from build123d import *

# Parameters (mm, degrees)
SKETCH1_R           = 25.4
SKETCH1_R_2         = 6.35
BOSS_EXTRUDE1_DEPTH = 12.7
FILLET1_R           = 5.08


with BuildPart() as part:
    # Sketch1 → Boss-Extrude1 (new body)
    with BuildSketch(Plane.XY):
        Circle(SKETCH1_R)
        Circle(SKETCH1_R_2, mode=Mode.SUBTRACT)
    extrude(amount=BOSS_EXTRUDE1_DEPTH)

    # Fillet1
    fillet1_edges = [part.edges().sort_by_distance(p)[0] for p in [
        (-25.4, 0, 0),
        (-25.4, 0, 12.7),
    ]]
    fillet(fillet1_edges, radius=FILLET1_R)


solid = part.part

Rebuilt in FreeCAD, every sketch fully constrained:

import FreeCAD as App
import Part
import Sketcher
from FreeCAD import Vector
Q = App.Units.Quantity


def edges_at(feature, points):
    """Names of the edges that pass closest to the given points."""
    edges = feature.Shape.Edges
    near = lambda p: min(range(len(edges)), key=lambda i: edges[i].distToShape(Part.Vertex(*p))[0])
    return sorted({f"Edge{near(p) + 1}" for p in points})

doc = App.newDocument("Part")
body = doc.addObject("PartDesign::Body", "Body")

# Sketch on XY plane
sketch1 = body.newObject("Sketcher::SketchObject", "Sketch")
sketch1.AttachmentSupport = (doc.getObject("XY_Plane"), [""])
sketch1.MapMode = "FlatFace"
sketch1.addGeometry([
    Part.Circle(Vector(0, 0, 0), Vector(0, 0, 1), 25),
    Part.Circle(Vector(0, 0, 0), Vector(0, 0, 1), 6),
], False)
sketch1.addConstraint([
    Sketcher.Constraint("Coincident", 0, 3, -1, 1),
    Sketcher.Constraint("Coincident", 1, 3, -1, 1),
    Sketcher.Constraint("Diameter", 0, Q("2 in")),
    Sketcher.Constraint("Diameter", 1, Q("0.5 in")),
])
pad1 = body.newObject("PartDesign::Pad", "Pad")
pad1.Profile = sketch1
pad1.Length = Q("0.5 in")
doc.recompute()

fillet = body.newObject("PartDesign::Fillet", "Fillet")
fillet.Base = (pad1, edges_at(pad1, [(-25.4, 0, 0), (-25.4, 0, 12.7)]))
fillet.Radius = Q("0.2 in")

doc.recompute()
